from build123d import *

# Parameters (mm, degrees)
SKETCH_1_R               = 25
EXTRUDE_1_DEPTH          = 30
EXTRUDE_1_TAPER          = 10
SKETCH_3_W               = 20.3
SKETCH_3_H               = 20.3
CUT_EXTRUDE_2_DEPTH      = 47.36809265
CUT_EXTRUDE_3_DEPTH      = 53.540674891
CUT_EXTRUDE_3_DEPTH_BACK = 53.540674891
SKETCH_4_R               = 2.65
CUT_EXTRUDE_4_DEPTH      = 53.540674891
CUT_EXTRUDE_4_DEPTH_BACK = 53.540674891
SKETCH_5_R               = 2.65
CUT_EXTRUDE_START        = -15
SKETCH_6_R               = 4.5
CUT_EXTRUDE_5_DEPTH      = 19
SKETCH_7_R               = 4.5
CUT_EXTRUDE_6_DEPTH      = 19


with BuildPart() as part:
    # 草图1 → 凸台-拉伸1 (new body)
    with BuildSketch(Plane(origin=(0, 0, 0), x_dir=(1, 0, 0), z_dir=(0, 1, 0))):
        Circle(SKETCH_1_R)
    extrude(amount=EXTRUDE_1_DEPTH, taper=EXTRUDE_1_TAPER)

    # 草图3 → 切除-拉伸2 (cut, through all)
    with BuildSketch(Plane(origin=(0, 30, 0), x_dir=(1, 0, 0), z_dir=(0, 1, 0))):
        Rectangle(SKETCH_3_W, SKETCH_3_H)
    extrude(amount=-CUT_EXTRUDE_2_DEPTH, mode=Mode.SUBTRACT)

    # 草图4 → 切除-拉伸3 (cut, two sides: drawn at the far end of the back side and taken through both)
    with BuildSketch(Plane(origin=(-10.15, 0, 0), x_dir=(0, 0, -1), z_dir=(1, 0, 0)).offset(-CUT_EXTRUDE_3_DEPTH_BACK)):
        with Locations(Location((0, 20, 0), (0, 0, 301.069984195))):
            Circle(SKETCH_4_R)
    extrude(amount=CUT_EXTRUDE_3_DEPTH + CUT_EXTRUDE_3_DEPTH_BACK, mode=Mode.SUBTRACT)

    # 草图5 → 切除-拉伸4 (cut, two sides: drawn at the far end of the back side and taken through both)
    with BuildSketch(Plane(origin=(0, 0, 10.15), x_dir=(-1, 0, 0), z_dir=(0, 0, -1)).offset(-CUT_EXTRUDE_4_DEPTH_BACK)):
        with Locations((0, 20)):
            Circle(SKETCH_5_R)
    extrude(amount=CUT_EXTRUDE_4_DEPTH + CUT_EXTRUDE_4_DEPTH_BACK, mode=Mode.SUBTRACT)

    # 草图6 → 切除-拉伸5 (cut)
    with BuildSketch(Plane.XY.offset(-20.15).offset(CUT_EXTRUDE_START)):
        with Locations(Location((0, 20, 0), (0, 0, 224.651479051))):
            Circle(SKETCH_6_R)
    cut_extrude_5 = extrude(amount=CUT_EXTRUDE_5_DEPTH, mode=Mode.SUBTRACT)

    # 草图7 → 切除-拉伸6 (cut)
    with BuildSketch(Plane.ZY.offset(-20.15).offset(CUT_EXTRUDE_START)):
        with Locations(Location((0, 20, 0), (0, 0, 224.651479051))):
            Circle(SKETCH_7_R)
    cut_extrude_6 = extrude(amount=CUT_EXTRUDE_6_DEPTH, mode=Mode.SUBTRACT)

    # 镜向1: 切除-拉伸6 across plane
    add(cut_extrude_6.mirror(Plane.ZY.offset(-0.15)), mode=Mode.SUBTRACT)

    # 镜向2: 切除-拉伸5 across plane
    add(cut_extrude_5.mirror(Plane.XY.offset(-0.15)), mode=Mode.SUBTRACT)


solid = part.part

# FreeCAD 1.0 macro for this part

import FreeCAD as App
import Part
import Sketcher
from FreeCAD import Vector
Q = App.Units.Quantity

doc = App.newDocument("Part")
body = doc.addObject("PartDesign::Body", "Body")

# Sketch on XZ plane
sketch1 = body.newObject("Sketcher::SketchObject", "Sketch")
sketch1.AttachmentSupport = (doc.getObject("XZ_Plane"), [""])
sketch1.MapMode = "FlatFace"
sketch1.addGeometry(Part.Circle(Vector(0, 0, 0), Vector(0, 0, 1), 25), False)
sketch1.addConstraint(Sketcher.Constraint("Coincident", 0, 3, -1, 1))
sketch1.addConstraint(Sketcher.Constraint("Diameter", 0, Q("50 mm")))
pad1 = body.newObject("PartDesign::Pad", "Pad")
pad1.Profile = sketch1
pad1.Length = 30
pad1.Reversed = True
pad1.TaperAngle = -10

# Sketch on XZ plane
sketch2 = body.newObject("Sketcher::SketchObject", "Sketch001")
sketch2.AttachmentSupport = (doc.getObject("XZ_Plane"), [""])
sketch2.MapMode = "FlatFace"
sketch2.AttachmentOffset = App.Placement(Vector(0, 0, -30), App.Rotation())
sketch2.addGeometry(Part.LineSegment(Vector(-10, -10, 0), Vector(-10, 10, 0)), False)
sketch2.addGeometry(Part.LineSegment(Vector(-10, 10, 0), Vector(10, 10, 0)), False)
sketch2.addGeometry(Part.LineSegment(Vector(10, 10, 0), Vector(10, -10, 0)), False)
sketch2.addGeometry(Part.LineSegment(Vector(10, -10, 0), Vector(-10, -10, 0)), False)
sketch2.addConstraint(Sketcher.Constraint("Coincident", 0, 2, 1, 1))
sketch2.addConstraint(Sketcher.Constraint("Coincident", 1, 2, 2, 1))
sketch2.addConstraint(Sketcher.Constraint("Coincident", 2, 2, 3, 1))
sketch2.addConstraint(Sketcher.Constraint("Coincident", 3, 2, 0, 1))
sketch2.addConstraint(Sketcher.Constraint("Vertical", 0))
sketch2.addConstraint(Sketcher.Constraint("Horizontal", 1))
sketch2.addConstraint(Sketcher.Constraint("Vertical", 2))
sketch2.addConstraint(Sketcher.Constraint("Horizontal", 3))
sketch2.addConstraint(Sketcher.Constraint("Symmetric", 0, 2, 2, 2, -1, 1))
sketch2.addConstraint(Sketcher.Constraint("Equal", 3, 0))
sketch2.addConstraint(Sketcher.Constraint("DistanceX", 1, 1, 1, 2, Q("20.3 mm")))
pocket1 = body.newObject("PartDesign::Pocket", "Pocket")
pocket1.Profile = sketch2
pocket1.Type = "ThroughAll"
pocket1.Reversed = True

# Sketch on YZ plane
sketch3 = body.newObject("Sketcher::SketchObject", "Sketch002")
sketch3.AttachmentSupport = (doc.getObject("YZ_Plane"), [""])
sketch3.MapMode = "FlatFace"
sketch3.AttachmentOffset = App.Placement(Vector(0, 0, -10.15), App.Rotation())
sketch3.addGeometry(Part.Circle(Vector(20, 0, 0), Vector(0, 0, 1), 2.6), False)
sketch3.addConstraint(Sketcher.Constraint("PointOnObject", 0, 3, -1))
sketch3.addConstraint(Sketcher.Constraint("Diameter", 0, Q("5.3 mm")))
sketch3.addConstraint(Sketcher.Constraint("DistanceX", -1, 1, 0, 3, Q("20 mm")))
pocket2 = body.newObject("PartDesign::Pocket", "Pocket001")
pocket2.Profile = sketch3
pocket2.Type = "ThroughAll"
pocket2.Midplane = True

# Sketch on XY plane
sketch4 = body.newObject("Sketcher::SketchObject", "Sketch003")
sketch4.AttachmentSupport = (doc.getObject("XY_Plane"), [""])
sketch4.MapMode = "FlatFace"
sketch4.AttachmentOffset = App.Placement(Vector(0, 0, 10.15), App.Rotation())
sketch4.addGeometry(Part.Circle(Vector(0, 20, 0), Vector(0, 0, 1), 2.6), False)
sketch4.addConstraint(Sketcher.Constraint("PointOnObject", 0, 3, -2))
sketch4.addConstraint(Sketcher.Constraint("Diameter", 0, Q("5.3 mm")))
sketch4.addConstraint(Sketcher.Constraint("DistanceY", -1, 1, 0, 3, Q("20 mm")))
pocket3 = body.newObject("PartDesign::Pocket", "Pocket002")
pocket3.Profile = sketch4
pocket3.Type = "ThroughAll"
pocket3.Midplane = True

# Sketch on XY plane
sketch5 = body.newObject("Sketcher::SketchObject", "Sketch004")
sketch5.AttachmentSupport = (doc.getObject("XY_Plane"), [""])
sketch5.MapMode = "FlatFace"
sketch5.AttachmentOffset = App.Placement(Vector(0, 0, -35.15), App.Rotation())
sketch5.addGeometry(Part.Circle(Vector(0, 20, 0), Vector(0, 0, 1), 4.5), False)
sketch5.addConstraint(Sketcher.Constraint("PointOnObject", 0, 3, -2))
sketch5.addConstraint(Sketcher.Constraint("Diameter", 0, Q("9 mm")))
sketch5.addConstraint(Sketcher.Constraint("DistanceY", -1, 1, 0, 3, Q("20 mm")))
pocket4 = body.newObject("PartDesign::Pocket", "Pocket003")
pocket4.Profile = sketch5
pocket4.Length = 19
pocket4.Reversed = True

# Sketch on YZ plane
sketch6 = body.newObject("Sketcher::SketchObject", "Sketch005")
sketch6.AttachmentSupport = (doc.getObject("YZ_Plane"), [""])
sketch6.MapMode = "FlatFace"
sketch6.AttachmentOffset = App.Placement(Vector(0, 0, 35.15), App.Rotation())
sketch6.addGeometry(Part.Circle(Vector(20, 0, 0), Vector(0, 0, 1), 4.5), False)
sketch6.addConstraint(Sketcher.Constraint("PointOnObject", 0, 3, -1))
sketch6.addConstraint(Sketcher.Constraint("Diameter", 0, Q("9 mm")))
sketch6.addConstraint(Sketcher.Constraint("DistanceX", -1, 1, 0, 3, Q("20 mm")))
pocket5 = body.newObject("PartDesign::Pocket", "Pocket004")
pocket5.Profile = sketch6
pocket5.Length = 19
doc.recompute()

datumplane = body.newObject("PartDesign::Plane", "DatumPlane")
datumplane.AttachmentSupport = (doc.getObject("YZ_Plane"), [""])
datumplane.MapMode = "FlatFace"
datumplane.AttachmentOffset = App.Placement(Vector(0, 0, 0.15), App.Rotation())
mirrored = body.newObject("PartDesign::Mirrored", "Mirrored")
mirrored.Originals = [pocket5]
mirrored.MirrorPlane = (datumplane, [""])
body.Tip = mirrored
doc.recompute()

datumplane2 = body.newObject("PartDesign::Plane", "DatumPlane001")
datumplane2.AttachmentSupport = (doc.getObject("XY_Plane"), [""])
datumplane2.MapMode = "FlatFace"
datumplane2.AttachmentOffset = App.Placement(Vector(0, 0, -0.15), App.Rotation())
mirrored2 = body.newObject("PartDesign::Mirrored", "Mirrored001")
mirrored2.Originals = [pocket4]
mirrored2.MirrorPlane = (datumplane2, [""])
body.Tip = mirrored2

doc.recompute()
